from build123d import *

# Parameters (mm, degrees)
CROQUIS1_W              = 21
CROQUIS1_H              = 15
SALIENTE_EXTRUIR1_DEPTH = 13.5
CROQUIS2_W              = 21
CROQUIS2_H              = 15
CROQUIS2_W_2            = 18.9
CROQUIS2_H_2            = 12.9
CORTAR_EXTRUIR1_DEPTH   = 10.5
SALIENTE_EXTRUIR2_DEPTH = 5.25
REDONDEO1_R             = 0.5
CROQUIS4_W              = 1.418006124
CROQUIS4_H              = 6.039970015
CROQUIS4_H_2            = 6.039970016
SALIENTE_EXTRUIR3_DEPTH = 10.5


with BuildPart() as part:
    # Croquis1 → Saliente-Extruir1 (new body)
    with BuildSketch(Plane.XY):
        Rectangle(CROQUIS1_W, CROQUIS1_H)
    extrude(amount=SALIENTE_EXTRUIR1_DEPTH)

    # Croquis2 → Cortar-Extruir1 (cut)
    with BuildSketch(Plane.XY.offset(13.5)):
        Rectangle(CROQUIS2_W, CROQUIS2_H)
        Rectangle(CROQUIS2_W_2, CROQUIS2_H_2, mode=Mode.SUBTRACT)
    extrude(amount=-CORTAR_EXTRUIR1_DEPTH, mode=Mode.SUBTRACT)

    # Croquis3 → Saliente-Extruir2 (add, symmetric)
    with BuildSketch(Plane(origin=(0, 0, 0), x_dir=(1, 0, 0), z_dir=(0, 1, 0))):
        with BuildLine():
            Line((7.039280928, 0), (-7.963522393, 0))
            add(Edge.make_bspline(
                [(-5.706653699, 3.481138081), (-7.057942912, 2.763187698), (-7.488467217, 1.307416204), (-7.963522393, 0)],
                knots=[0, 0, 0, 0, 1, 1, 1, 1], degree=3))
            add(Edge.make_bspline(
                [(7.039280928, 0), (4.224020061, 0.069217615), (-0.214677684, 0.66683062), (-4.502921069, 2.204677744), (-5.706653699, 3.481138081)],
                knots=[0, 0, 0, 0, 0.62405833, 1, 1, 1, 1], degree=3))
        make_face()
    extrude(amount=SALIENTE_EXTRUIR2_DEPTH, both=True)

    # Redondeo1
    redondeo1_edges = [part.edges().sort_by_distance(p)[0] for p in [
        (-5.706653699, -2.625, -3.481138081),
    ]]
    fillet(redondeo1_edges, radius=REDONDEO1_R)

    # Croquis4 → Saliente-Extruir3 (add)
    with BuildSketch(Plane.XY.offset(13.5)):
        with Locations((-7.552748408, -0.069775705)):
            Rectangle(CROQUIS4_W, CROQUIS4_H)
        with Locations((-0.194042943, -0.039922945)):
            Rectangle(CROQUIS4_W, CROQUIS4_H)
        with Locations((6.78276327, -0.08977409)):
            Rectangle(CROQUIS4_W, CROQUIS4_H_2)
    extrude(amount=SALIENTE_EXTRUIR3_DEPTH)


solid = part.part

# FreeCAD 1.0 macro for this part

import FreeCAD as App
import Part
import Sketcher

V = App.Vector


def edges_at(feature, points):
    """Names of the edges that pass closest to the given points."""
    edges = feature.Shape.Edges
    near = lambda p: min(range(len(edges)), key=lambda i: edges[i].distToShape(Part.Vertex(*p))[0])
    return sorted({f"Edge{near(p) + 1}" for p in points})


def add_polygon(sketch, points):
    """Adds a closed chain of lines whose ends are joined by coincident constraints."""
    first, n = sketch.GeometryCount, len(points)
    for a, b in zip(points, points[1:] + points[:1]):
        sketch.addGeometry(Part.LineSegment(App.Vector(*a, 0), App.Vector(*b, 0)), False)
    for i in range(n):
        sketch.addConstraint(Sketcher.Constraint("Coincident", first + i, 2, first + (i + 1) % n, 1))

doc = App.newDocument("Part")
body = doc.addObject("PartDesign::Body", "Body")

# Sketch on XY plane
sketch1 = body.newObject("Sketcher::SketchObject", "Sketch")
sketch1.AttachmentSupport = (doc.getObject("XY_Plane"), [""])
sketch1.MapMode = "FlatFace"
add_polygon(sketch1, [(-10, 8), (-10, -8), (10, -8), (10, 8)])  # lines 0-3
sketch1.addConstraint([
    Sketcher.Constraint("Vertical", 0),
    Sketcher.Constraint("Horizontal", 1),
    Sketcher.Constraint("Vertical", 2),
    Sketcher.Constraint("Horizontal", 3),
    Sketcher.Constraint("Symmetric", 0, 2, 2, 2, -1, 1),
    Sketcher.Constraint("DistanceX", 1, 1, 1, 2, 21.0),
    Sketcher.Constraint("DistanceY", 0, 2, 0, 1, 15.0),
])
pad1 = body.newObject("PartDesign::Pad", "Pad")
pad1.Profile = sketch1
pad1.Length = 13.5

# Sketch on XY plane
sketch2 = body.newObject("Sketcher::SketchObject", "Sketch001")
sketch2.AttachmentSupport = (doc.getObject("XY_Plane"), [""])
sketch2.MapMode = "FlatFace"
sketch2.AttachmentOffset = App.Placement(V(0, 0, 13.5), App.Rotation())
add_polygon(sketch2, [(-10, 8), (-10, -8), (10, -8), (10, 8)])  # lines 0-3
add_polygon(sketch2, [(9, -6), (-9, -6), (-9, 6), (9, 6)])  # lines 4-7
sketch2.addConstraint([
    Sketcher.Constraint("Vertical", 0),
    Sketcher.Constraint("Horizontal", 1),
    Sketcher.Constraint("Vertical", 2),
    Sketcher.Constraint("Horizontal", 3),
    Sketcher.Constraint("Horizontal", 4),
    Sketcher.Constraint("Vertical", 5),
    Sketcher.Constraint("Horizontal", 6),
    Sketcher.Constraint("Vertical", 7),
    Sketcher.Constraint("Symmetric", 0, 2, 2, 2, -1, 1),
    Sketcher.Constraint("Symmetric", 4, 2, 6, 2, -1, 1),
    Sketcher.Constraint("DistanceX", 1, 1, 1, 2, 21.0),
    Sketcher.Constraint("DistanceY", 0, 2, 0, 1, 15.0),
    Sketcher.Constraint("DistanceX", 4, 2, 4, 1, 18.9),
    Sketcher.Constraint("DistanceY", 5, 1, 5, 2, 12.9),
])
pocket1 = body.newObject("PartDesign::Pocket", "Pocket")
pocket1.Profile = sketch2
pocket1.Length = 10.5

# Sketch on XZ plane
sketch3 = body.newObject("Sketcher::SketchObject", "Sketch002")
sketch3.AttachmentSupport = (doc.getObject("XZ_Plane"), [""])
sketch3.MapMode = "FlatFace"
sketch3.addGeometry([
    Part.LineSegment(V(-7.963522, 0, 0), V(7.039281, 0, 0)),
    Part.BSplineCurve([V(7.039281, 0, 0), V(4.22402, -0.069218, 0), V(-0.214678, -0.666831, 0), V(-4.502921, -2.204678, 0), V(-5.706654, -3.481138, 0)], [4, 1, 4], [0, 0.62405833, 1], False, 3, [1, 1, 1, 1, 1], False),
    Part.BSplineCurve([V(-5.706654, -3.481138, 0), V(-7.057943, -2.763188, 0), V(-7.488467, -1.307416, 0), V(-7.963522, 0, 0)], [4, 4], [0, 1], False, 3, [1, 1, 1, 1], False),
], False)
sketch3.addConstraint([
    Sketcher.Constraint("Block", 1),
    Sketcher.Constraint("Block", 2),
    Sketcher.Constraint("Coincident", 0, 2, 1, 1),
    Sketcher.Constraint("Coincident", 2, 2, 0, 1),
])
pad2 = body.newObject("PartDesign::Pad", "Pad001")
pad2.Profile = sketch3
pad2.Length = 10.5
pad2.Midplane = True
doc.recompute()

fillet = body.newObject("PartDesign::Fillet", "Fillet")
fillet.Base = (pad2, edges_at(pad2, [(-5.707, -2.625, -3.481)]))
fillet.Radius = 0.5

# Sketch on XY plane
sketch4 = body.newObject("Sketcher::SketchObject", "Sketch003")
sketch4.AttachmentSupport = (doc.getObject("XY_Plane"), [""])
sketch4.MapMode = "FlatFace"
sketch4.AttachmentOffset = App.Placement(V(0, 0, 13.5), App.Rotation())
add_polygon(sketch4, [(-8.3, 3), (-8.3, -3.1), (-6.8, -3.1), (-6.8, 3)])  # lines 0-3
add_polygon(sketch4, [(-0.9, 3), (-0.9, -3.1), (0.5, -3.1), (0.5, 3)])  # lines 4-7
add_polygon(sketch4, [(6.1, 2.9), (6.1, -3.1), (7.5, -3.1), (7.5, 2.9)])  # lines 8-11
sketch4.addConstraint([
    Sketcher.Constraint("Vertical", 0),
    Sketcher.Constraint("Horizontal", 1),
    Sketcher.Constraint("Vertical", 2),
    Sketcher.Constraint("Horizontal", 3),
    Sketcher.Constraint("Vertical", 4),
    Sketcher.Constraint("Horizontal", 5),
    Sketcher.Constraint("Vertical", 6),
    Sketcher.Constraint("Horizontal", 7),
    Sketcher.Constraint("Vertical", 8),
    Sketcher.Constraint("Horizontal", 9),
    Sketcher.Constraint("Vertical", 10),
    Sketcher.Constraint("Horizontal", 11),
    Sketcher.Constraint("Equal", 3, 5),
    Sketcher.Constraint("Equal", 7, 9),
    Sketcher.Constraint("Equal", 2, 4),
    Sketcher.Constraint("Equal", 6, 8),
    Sketcher.Constraint("DistanceY", 8, 2, 1, 2, 0.019998),
    Sketcher.Constraint("DistanceY", 0, 2, 0, 1, 6.03997),
    Sketcher.Constraint("DistanceX", 1, 2, 4, 2, 5.940699),
    Sketcher.Constraint("DistanceX", 5, 2, 8, 2, 5.5588),
    Sketcher.Constraint("DistanceX", 1, 1, 1, 2, 1.418006),
    Sketcher.Constraint("DistanceX", 0, 2, -1, 1, 8.261751),
    Sketcher.Constraint("DistanceY", 0, 2, -1, 1, 3.089761),
    Sketcher.Constraint("DistanceY", 8, 2, 5, 2, 0.049851),
])
pad3 = body.newObject("PartDesign::Pad", "Pad002")
pad3.Profile = sketch4
pad3.Length = 10.5

doc.recompute()
